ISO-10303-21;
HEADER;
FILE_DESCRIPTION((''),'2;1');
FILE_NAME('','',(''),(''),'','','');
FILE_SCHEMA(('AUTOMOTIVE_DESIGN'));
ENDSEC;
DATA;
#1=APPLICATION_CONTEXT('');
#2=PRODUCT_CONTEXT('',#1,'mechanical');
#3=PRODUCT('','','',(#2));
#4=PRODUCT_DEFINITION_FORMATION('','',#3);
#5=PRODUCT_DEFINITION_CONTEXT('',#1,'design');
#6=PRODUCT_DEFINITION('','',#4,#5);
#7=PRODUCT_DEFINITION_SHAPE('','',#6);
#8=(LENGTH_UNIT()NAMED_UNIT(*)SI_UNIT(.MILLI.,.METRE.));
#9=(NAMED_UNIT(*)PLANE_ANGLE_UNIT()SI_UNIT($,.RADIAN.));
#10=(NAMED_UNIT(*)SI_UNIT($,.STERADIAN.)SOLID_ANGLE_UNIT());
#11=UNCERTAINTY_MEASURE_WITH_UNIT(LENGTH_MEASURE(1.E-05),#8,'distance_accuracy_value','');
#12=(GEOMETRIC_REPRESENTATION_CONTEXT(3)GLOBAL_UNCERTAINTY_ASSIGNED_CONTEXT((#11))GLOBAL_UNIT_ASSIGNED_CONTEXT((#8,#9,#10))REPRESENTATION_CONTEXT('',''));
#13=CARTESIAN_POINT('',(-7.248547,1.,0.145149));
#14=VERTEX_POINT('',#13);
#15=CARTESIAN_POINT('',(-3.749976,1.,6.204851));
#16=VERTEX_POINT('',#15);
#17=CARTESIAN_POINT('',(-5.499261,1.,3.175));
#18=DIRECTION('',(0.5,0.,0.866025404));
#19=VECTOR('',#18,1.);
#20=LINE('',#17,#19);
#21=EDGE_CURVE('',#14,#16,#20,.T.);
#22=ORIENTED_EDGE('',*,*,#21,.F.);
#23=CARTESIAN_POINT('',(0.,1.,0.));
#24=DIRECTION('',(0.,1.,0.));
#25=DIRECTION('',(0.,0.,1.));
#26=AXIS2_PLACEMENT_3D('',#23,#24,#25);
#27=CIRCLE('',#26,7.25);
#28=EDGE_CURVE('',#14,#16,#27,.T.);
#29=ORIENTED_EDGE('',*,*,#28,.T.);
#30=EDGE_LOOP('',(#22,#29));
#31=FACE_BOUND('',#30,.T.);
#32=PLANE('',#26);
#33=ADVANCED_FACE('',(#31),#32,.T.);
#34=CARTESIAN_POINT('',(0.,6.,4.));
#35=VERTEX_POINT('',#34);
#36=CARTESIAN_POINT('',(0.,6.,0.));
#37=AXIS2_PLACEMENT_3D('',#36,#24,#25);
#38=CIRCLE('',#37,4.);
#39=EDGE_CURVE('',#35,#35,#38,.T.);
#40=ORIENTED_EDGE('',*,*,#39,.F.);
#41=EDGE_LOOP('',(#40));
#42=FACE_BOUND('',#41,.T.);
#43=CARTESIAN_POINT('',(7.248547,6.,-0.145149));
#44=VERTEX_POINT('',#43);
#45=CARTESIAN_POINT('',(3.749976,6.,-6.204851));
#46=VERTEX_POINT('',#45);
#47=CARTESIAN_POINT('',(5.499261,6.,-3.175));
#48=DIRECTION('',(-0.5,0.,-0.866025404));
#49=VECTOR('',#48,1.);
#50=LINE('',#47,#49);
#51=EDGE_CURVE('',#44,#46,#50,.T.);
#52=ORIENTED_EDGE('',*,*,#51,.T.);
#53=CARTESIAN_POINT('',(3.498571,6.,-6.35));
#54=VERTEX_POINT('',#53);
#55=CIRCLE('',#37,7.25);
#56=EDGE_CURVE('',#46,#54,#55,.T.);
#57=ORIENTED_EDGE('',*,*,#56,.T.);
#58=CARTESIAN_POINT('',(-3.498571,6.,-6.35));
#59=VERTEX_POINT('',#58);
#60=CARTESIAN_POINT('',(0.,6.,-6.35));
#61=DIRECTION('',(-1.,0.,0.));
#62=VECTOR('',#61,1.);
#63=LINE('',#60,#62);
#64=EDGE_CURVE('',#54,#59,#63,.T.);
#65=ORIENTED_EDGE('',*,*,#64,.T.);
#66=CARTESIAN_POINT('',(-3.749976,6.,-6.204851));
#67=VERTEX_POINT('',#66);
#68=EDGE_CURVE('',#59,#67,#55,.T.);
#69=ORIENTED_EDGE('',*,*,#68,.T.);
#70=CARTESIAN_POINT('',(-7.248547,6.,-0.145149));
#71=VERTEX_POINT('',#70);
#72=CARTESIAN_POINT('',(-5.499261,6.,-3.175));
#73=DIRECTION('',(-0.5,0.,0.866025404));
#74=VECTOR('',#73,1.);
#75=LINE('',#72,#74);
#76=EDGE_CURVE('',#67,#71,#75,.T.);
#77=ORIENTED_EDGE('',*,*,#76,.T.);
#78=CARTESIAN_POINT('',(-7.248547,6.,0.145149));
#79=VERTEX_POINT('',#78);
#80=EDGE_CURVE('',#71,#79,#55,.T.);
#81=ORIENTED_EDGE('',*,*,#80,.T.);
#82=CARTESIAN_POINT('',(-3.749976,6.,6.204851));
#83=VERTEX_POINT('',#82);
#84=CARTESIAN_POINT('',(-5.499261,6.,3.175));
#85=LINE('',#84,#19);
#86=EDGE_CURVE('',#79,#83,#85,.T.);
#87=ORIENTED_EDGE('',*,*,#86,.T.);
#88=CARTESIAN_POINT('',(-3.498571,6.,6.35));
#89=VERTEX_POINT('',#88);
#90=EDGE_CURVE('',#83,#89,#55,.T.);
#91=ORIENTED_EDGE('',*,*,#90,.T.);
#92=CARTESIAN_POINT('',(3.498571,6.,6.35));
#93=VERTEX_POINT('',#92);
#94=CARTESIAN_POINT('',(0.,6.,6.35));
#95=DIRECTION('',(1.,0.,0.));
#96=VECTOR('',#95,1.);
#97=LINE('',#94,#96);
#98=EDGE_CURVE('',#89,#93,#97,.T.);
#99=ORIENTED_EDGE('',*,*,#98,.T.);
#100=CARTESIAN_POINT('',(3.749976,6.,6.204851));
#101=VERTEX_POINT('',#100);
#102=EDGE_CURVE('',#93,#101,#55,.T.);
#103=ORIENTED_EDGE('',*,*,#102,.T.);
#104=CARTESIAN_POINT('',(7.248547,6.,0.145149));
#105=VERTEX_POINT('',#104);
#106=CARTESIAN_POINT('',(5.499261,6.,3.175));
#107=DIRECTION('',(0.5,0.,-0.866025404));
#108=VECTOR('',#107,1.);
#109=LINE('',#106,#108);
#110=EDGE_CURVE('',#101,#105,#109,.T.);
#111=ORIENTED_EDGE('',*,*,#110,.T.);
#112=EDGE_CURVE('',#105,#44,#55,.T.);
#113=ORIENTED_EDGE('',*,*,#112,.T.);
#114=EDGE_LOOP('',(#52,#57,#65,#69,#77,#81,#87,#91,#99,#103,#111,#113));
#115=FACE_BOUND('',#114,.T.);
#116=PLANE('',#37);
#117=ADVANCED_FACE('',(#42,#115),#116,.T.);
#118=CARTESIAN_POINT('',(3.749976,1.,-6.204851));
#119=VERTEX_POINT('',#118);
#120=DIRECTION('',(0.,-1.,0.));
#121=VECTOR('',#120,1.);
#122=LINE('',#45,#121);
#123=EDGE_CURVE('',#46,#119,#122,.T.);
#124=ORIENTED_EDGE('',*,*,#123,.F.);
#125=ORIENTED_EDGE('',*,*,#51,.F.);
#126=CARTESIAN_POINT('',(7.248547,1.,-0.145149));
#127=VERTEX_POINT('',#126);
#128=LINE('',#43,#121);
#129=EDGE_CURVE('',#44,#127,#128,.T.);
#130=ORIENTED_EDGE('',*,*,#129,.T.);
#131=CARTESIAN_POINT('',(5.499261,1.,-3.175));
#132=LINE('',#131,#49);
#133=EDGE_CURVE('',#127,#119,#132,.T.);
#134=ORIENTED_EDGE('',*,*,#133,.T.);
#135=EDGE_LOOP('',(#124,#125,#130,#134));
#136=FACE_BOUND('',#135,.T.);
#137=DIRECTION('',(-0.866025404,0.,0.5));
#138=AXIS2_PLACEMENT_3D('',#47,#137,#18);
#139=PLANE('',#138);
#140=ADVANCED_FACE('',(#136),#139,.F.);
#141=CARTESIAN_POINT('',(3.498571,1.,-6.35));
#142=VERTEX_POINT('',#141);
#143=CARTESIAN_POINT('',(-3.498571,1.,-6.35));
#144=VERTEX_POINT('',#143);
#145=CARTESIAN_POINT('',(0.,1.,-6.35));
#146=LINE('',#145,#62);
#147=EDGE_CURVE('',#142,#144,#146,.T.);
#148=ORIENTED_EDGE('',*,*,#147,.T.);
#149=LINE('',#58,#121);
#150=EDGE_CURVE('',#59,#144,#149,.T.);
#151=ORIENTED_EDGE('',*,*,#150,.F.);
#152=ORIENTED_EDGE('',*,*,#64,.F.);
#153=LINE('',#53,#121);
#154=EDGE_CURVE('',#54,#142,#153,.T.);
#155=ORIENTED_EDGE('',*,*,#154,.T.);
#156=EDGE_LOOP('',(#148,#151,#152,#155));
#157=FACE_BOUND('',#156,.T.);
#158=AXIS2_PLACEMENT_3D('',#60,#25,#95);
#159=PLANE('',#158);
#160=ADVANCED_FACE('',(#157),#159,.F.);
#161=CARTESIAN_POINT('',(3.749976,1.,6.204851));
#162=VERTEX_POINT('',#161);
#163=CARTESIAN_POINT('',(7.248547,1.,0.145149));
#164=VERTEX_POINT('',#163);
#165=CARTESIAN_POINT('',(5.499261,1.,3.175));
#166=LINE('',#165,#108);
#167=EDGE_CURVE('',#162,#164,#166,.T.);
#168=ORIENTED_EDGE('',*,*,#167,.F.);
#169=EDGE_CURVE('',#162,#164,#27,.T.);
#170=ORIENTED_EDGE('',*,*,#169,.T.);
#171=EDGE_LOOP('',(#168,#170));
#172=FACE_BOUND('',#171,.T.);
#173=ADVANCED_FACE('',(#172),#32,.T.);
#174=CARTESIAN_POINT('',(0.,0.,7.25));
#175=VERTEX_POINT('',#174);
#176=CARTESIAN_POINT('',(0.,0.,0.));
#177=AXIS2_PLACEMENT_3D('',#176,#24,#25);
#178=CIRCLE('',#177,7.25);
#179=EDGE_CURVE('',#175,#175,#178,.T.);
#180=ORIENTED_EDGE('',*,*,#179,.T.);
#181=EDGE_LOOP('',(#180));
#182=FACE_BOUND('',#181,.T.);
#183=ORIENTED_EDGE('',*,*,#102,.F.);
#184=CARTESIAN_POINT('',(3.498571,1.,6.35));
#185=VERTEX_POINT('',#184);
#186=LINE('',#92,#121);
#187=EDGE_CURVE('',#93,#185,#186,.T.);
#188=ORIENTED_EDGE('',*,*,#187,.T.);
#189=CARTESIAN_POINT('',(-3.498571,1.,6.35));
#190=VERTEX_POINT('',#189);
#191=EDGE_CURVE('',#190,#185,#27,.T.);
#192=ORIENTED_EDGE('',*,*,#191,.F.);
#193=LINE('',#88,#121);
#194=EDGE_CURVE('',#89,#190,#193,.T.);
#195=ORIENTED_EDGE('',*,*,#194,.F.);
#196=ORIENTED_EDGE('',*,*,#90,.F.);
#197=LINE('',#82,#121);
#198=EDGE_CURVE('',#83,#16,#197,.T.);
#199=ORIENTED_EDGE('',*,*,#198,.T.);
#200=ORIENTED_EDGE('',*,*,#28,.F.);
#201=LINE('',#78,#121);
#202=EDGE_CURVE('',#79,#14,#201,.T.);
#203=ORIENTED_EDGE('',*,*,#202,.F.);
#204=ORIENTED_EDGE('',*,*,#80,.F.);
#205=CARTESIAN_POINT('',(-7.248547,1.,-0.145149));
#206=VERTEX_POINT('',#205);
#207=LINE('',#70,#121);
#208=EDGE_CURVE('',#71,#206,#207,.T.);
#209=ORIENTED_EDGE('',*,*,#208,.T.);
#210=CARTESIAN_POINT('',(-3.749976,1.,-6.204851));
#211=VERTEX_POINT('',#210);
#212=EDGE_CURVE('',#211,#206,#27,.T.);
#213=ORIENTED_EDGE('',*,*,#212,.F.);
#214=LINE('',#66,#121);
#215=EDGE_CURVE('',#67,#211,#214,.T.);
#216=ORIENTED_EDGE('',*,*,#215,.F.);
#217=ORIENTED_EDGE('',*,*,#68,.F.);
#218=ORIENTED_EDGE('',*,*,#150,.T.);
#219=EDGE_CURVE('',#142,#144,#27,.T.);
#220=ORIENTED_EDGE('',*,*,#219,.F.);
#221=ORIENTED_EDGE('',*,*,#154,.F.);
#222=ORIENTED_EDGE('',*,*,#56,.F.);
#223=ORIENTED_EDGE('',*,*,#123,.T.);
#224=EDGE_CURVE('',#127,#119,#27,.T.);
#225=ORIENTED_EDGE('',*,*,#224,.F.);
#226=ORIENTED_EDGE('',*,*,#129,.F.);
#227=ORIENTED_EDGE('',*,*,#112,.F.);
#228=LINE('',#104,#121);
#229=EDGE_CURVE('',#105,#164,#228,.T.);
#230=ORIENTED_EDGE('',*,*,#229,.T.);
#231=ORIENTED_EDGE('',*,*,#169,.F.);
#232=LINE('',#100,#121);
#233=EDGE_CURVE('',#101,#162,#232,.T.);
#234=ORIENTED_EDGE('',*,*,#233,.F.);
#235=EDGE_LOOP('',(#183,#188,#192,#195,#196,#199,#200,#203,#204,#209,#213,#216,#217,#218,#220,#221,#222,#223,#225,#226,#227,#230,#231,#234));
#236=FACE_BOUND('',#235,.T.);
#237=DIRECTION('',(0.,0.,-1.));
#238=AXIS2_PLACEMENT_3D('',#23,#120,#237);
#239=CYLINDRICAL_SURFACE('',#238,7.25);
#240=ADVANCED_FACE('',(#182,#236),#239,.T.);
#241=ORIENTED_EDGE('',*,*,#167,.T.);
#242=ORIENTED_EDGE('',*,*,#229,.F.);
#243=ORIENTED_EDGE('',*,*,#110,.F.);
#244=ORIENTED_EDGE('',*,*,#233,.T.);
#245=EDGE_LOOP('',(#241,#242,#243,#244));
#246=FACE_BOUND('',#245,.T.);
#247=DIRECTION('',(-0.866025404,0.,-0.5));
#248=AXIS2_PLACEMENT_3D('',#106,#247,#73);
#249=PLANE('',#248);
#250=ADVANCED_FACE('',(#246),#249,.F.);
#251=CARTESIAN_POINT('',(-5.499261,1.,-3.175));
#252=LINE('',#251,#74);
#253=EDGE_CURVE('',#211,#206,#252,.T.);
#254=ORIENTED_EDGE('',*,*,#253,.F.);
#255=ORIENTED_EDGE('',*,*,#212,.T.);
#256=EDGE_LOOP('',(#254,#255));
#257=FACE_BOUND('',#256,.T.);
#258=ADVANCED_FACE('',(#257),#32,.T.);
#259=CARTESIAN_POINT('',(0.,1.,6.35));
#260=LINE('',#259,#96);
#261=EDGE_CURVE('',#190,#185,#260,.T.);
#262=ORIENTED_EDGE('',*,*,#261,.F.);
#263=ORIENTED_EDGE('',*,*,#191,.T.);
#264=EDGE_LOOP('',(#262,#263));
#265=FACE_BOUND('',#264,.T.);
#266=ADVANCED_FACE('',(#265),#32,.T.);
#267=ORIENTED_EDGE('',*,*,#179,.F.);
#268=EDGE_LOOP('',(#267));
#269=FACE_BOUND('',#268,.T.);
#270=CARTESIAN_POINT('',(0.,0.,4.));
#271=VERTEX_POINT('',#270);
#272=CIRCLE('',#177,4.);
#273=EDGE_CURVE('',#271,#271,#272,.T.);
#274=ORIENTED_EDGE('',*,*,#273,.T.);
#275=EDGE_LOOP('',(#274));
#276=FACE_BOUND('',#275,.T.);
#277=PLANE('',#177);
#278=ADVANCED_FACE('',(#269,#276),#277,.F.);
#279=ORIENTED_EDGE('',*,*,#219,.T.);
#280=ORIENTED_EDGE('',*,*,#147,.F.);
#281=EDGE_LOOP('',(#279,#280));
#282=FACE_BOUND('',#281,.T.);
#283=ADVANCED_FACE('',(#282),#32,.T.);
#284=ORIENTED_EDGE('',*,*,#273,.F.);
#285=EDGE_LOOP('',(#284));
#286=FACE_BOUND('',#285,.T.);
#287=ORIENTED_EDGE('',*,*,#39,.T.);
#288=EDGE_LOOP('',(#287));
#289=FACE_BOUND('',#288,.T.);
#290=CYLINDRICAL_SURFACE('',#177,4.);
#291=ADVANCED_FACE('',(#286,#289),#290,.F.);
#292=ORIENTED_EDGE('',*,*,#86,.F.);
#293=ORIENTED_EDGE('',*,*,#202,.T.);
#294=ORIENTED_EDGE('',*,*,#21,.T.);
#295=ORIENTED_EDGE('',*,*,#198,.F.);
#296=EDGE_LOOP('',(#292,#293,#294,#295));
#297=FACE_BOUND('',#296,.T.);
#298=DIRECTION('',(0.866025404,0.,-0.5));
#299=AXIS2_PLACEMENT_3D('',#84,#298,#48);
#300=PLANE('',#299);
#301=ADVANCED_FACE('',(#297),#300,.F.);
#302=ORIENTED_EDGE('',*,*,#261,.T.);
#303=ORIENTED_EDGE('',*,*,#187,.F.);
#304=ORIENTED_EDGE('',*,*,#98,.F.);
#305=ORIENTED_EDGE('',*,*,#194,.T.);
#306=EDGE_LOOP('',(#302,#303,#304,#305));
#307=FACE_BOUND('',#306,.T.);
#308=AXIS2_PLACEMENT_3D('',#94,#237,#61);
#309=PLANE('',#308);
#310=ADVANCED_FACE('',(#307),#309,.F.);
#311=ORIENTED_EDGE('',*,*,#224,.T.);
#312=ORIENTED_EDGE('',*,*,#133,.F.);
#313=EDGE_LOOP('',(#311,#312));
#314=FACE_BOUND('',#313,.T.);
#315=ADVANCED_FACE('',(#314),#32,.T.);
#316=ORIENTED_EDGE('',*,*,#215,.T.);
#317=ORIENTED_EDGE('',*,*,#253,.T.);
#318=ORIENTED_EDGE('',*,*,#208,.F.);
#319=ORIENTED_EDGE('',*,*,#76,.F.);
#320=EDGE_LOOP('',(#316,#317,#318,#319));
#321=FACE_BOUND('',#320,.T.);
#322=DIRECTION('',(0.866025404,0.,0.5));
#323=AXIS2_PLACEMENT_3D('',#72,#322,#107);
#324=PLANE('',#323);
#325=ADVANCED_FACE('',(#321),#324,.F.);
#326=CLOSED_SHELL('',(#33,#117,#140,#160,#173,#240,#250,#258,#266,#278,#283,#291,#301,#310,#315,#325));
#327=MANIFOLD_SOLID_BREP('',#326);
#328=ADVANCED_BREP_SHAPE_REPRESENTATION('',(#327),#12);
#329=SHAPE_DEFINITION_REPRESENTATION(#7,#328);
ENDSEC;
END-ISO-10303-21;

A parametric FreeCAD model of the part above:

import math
import FreeCAD as App
import Part
import Sketcher
Q = App.Units.Quantity

doc = App.newDocument("Part")
body = doc.addObject("PartDesign::Body", "Body")

# Sketch on XZ plane
sketch1 = body.newObject("Sketcher::SketchObject", "Sketch")
sketch1.AttachmentSupport = (doc.getObject("XZ_Plane"), [""])
sketch1.MapMode = "FlatFace"
sketch1.addGeometry(Part.Circle(App.Vector(0, 0, 0), App.Vector(0, 0, 1), 7), False)
sketch1.addConstraint(Sketcher.Constraint("Coincident", 0, 3, -1, 1))
sketch1.addConstraint(Sketcher.Constraint("Diameter", 0, Q("14.5 mm")))
pad1 = body.newObject("PartDesign::Pad", "Pad")
pad1.Profile = sketch1
pad1.Length = 1
pad1.Reversed = True

# Sketch on XZ plane
sketch2 = body.newObject("Sketcher::SketchObject", "Sketch001")
sketch2.AttachmentSupport = (doc.getObject("XZ_Plane"), [""])
sketch2.MapMode = "FlatFace"
sketch2.AttachmentOffset = App.Placement(App.Vector(0, 0, -1), App.Rotation())
sketch2.addGeometry(Part.ArcOfCircle(Part.Circle(App.Vector(-0.000002, 0.000003, 0), App.Vector(0, 0, 1), 7.250004), math.radians(-61.147166), math.radians(-58.852835)), False)
sketch2.addGeometry(Part.LineSegment(App.Vector(3.498571, -6.35, 0), App.Vector(-3.498571, -6.35, 0)), False)
sketch2.addGeometry(Part.ArcOfCircle(Part.Circle(App.Vector(0.000002, 0.000003, 0), App.Vector(0, 0, 1), 7.250004), math.radians(-121.147165), math.radians(-118.852834)), False)
sketch2.addGeometry(Part.LineSegment(App.Vector(-3.749976, -6.204851, 0), App.Vector(-7.248547, -0.145149, 0)), False)
sketch2.addGeometry(Part.ArcOfCircle(Part.Circle(App.Vector(-0.000002, 0, 0), App.Vector(0, 0, 1), 7.249998), math.radians(178.852834), math.radians(181.147166)), False)
sketch2.addGeometry(Part.LineSegment(App.Vector(-7.248547, 0.145149, 0), App.Vector(-3.749976, 6.204851, 0)), False)
sketch2.addGeometry(Part.ArcOfCircle(Part.Circle(App.Vector(0.000002, -0.000003, 0), App.Vector(0, 0, 1), 7.250004), math.radians(118.852834), math.radians(121.147165)), False)
sketch2.addGeometry(Part.LineSegment(App.Vector(-3.498571, 6.35, 0), App.Vector(3.498571, 6.35, 0)), False)
sketch2.addGeometry(Part.ArcOfCircle(Part.Circle(App.Vector(-0.000002, -0.000003, 0), App.Vector(0, 0, 1), 7.250004), math.radians(58.852835), math.radians(61.147166)), False)
sketch2.addGeometry(Part.LineSegment(App.Vector(3.749976, 6.204851, 0), App.Vector(7.248547, 0.145149, 0)), False)
sketch2.addGeometry(Part.ArcOfCircle(Part.Circle(App.Vector(0.000015, 0, 0), App.Vector(0, 0, 1), 7.249985), math.radians(-0.000001), math.radians(1.147167)), False)
sketch2.addGeometry(Part.ArcOfCircle(Part.Circle(App.Vector(0.000015, 0, 0), App.Vector(0, 0, 1), 7.249985), math.radians(-1.147167), math.radians(0.000001)), False)
sketch2.addGeometry(Part.LineSegment(App.Vector(7.248547, -0.145149, 0), App.Vector(3.749976, -6.204851, 0)), False)
sketch2.addConstraint(Sketcher.Constraint("Coincident", 0, 1, 1, 1))
sketch2.addConstraint(Sketcher.Constraint("Coincident", 1, 2, 2, 2))
sketch2.addConstraint(Sketcher.Constraint("Coincident", 2, 1, 3, 1))
sketch2.addConstraint(Sketcher.Constraint("Coincident", 3, 2, 4, 2))
sketch2.addConstraint(Sketcher.Constraint("Coincident", 4, 1, 5, 1))
sketch2.addConstraint(Sketcher.Constraint("Coincident", 5, 2, 6, 2))
sketch2.addConstraint(Sketcher.Constraint("Coincident", 6, 1, 7, 1))
sketch2.addConstraint(Sketcher.Constraint("Coincident", 7, 2, 8, 2))
sketch2.addConstraint(Sketcher.Constraint("Coincident", 8, 1, 9, 1))
sketch2.addConstraint(Sketcher.Constraint("Coincident", 9, 2, 10, 2))
sketch2.addConstraint(Sketcher.Constraint("Coincident", 10, 1, 11, 2))
sketch2.addConstraint(Sketcher.Constraint("Coincident", 11, 1, 12, 1))
sketch2.addConstraint(Sketcher.Constraint("Coincident", 12, 2, 0, 2))
sketch2.addConstraint(Sketcher.Constraint("Horizontal", 1))
sketch2.addConstraint(Sketcher.Constraint("Horizontal", 7))
sketch2.addConstraint(Sketcher.Constraint("Coincident", 0, 3, -1, 1))
sketch2.addConstraint(Sketcher.Constraint("Coincident", 2, 3, -1, 1))
sketch2.addConstraint(Sketcher.Constraint("Coincident", 4, 3, -1, 1))
sketch2.addConstraint(Sketcher.Constraint("Coincident", 6, 3, -1, 1))
sketch2.addConstraint(Sketcher.Constraint("Coincident", 8, 3, -1, 1))
sketch2.addConstraint(Sketcher.Constraint("Coincident", 11, 3, 10, 3))
sketch2.addConstraint(Sketcher.Constraint("PointOnObject", 10, 3, -1))
sketch2.addConstraint(Sketcher.Constraint("PointOnObject", 10, 1, -1))
sketch2.addConstraint(Sketcher.Constraint("DistanceY", 0, 1, -1, 1, Q("6.35 mm")))
sketch2.addConstraint(Sketcher.Constraint("DistanceY", -1, 1, 6, 1, Q("6.35 mm")))
sketch2.addConstraint(Sketcher.Constraint("DistanceX", -1, 1, 10, 1, Q("7.25 mm")))
sketch2.addConstraint(Sketcher.Constraint("DistanceY", 2, 1, 4, 1, Q("6.35 mm")))
sketch2.addConstraint(Sketcher.Constraint("DistanceY", 3, 2, 5, 2, Q("6.35 mm")))
sketch2.addConstraint(Sketcher.Constraint("Radius", 0, Q("7.250004 mm")))
sketch2.addConstraint(Sketcher.Constraint("Radius", 2, Q("7.250004 mm")))
sketch2.addConstraint(Sketcher.Constraint("Radius", 4, Q("7.249998 mm")))
sketch2.addConstraint(Sketcher.Constraint("Radius", 6, Q("7.250004 mm")))
sketch2.addConstraint(Sketcher.Constraint("Radius", 8, Q("7.250004 mm")))
sketch2.addConstraint(Sketcher.Constraint("Radius", 10, Q("7.249985 mm")))
sketch2.addConstraint(Sketcher.Constraint("DistanceY", 2, 1, -1, 1, Q("6.204851 mm")))
sketch2.addConstraint(Sketcher.Constraint("DistanceY", 3, 2, -1, 1, Q("0.145149 mm")))
sketch2.addConstraint(Sketcher.Constraint("DistanceY", -1, 1, 8, 1, Q("6.204851 mm")))
sketch2.addConstraint(Sketcher.Constraint("DistanceY", -1, 1, 9, 2, Q("0.145149 mm")))
sketch2.addConstraint(Sketcher.Constraint("DistanceY", 11, 1, -1, 1, Q("0.145149 mm")))
sketch2.addConstraint(Sketcher.Constraint("DistanceY", 12, 2, -1, 1, Q("6.204851 mm")))
pad2 = body.newObject("PartDesign::Pad", "Pad001")
pad2.Profile = sketch2
pad2.Length = 5
pad2.Reversed = True

# Sketch on XZ plane
sketch3 = body.newObject("Sketcher::SketchObject", "Sketch002")
sketch3.AttachmentSupport = (doc.getObject("XZ_Plane"), [""])
sketch3.MapMode = "FlatFace"
sketch3.AttachmentOffset = App.Placement(App.Vector(0, 0, -6), App.Rotation())
sketch3.addGeometry(Part.Circle(App.Vector(0, 0, 0), App.Vector(0, 0, 1), 4), False)
sketch3.addConstraint(Sketcher.Constraint("Coincident", 0, 3, -1, 1))
sketch3.addConstraint(Sketcher.Constraint("Diameter", 0, Q("8 mm")))
pocket1 = body.newObject("PartDesign::Pocket", "Pocket")
pocket1.Profile = sketch3
pocket1.Type = "ThroughAll"
pocket1.Reversed = True

doc.recompute()
